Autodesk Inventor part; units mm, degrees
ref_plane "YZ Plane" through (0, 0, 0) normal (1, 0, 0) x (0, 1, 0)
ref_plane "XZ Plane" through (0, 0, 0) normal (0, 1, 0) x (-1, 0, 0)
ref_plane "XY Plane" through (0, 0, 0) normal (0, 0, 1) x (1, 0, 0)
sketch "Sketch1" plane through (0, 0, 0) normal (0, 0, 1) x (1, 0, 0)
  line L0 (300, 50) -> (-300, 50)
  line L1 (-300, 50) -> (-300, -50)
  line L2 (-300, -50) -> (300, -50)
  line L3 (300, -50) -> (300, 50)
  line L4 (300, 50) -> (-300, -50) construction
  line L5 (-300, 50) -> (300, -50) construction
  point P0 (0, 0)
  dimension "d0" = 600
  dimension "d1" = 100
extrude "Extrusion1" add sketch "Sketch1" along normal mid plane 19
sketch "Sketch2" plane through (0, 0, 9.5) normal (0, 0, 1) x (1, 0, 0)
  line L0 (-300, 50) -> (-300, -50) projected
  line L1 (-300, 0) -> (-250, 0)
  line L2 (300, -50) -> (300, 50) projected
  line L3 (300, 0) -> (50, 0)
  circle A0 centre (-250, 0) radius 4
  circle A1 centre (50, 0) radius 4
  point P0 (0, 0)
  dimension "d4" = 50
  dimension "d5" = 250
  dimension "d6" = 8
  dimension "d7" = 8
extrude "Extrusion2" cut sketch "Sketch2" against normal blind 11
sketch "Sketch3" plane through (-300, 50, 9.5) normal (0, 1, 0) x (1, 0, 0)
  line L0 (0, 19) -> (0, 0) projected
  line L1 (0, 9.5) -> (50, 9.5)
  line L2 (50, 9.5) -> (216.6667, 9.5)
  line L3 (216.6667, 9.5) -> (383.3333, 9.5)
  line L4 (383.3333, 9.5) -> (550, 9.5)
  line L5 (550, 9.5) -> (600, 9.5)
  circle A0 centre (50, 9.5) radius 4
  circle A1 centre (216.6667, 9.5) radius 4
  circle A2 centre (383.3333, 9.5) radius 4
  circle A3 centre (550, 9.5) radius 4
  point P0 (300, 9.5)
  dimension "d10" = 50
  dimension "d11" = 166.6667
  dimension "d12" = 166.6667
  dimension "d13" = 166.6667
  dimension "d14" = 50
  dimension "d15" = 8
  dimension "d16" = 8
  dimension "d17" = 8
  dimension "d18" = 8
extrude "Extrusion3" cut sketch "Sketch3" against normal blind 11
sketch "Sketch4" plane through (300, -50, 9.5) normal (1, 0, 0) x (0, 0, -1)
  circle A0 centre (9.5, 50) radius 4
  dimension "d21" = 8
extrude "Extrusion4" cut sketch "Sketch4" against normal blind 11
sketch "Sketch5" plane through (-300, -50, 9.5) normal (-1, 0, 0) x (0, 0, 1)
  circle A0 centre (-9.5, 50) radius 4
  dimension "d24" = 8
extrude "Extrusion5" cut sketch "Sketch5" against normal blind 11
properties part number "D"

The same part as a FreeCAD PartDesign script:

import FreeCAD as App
import Part
import Sketcher
Q = App.Units.Quantity

doc = App.newDocument("Part")
params = doc.addObject("Spreadsheet::Sheet", "Params")
for row, (alias, value) in enumerate([
    ("sketch1_width", "600 mm"),
    ("sketch1_height", "100 mm"),
    ("pad1_length", "19 mm"),
    ("sketch2_diameter", "8 mm"),
    ("pocket1_length", "11 mm"),
    ("sketch3_diameter", "8 mm"),
    ("pocket2_length", "11 mm"),
    ("sketch4_diameter", "8 mm"),
    ("pocket3_length", "11 mm"),
    ("sketch5_diameter", "8 mm"),
    ("pocket4_length", "11 mm"),
], start=1):
    params.set(f"A{row}", alias)
    params.set(f"B{row}", "=" + value)
    params.setAlias(f"B{row}", alias)

body = doc.addObject("PartDesign::Body", "Body")

# Sketch on XY plane
sketch1 = body.newObject("Sketcher::SketchObject", "Sketch")
sketch1.AttachmentSupport = (doc.getObject("XY_Plane"), [""])
sketch1.MapMode = "FlatFace"
sketch1.addGeometry([
    Part.LineSegment(App.Vector(300, -50, 0), App.Vector(300, 50, 0)),
    Part.LineSegment(App.Vector(300, 50, 0), App.Vector(-300, 50, 0)),
    Part.LineSegment(App.Vector(-300, 50, 0), App.Vector(-300, -50, 0)),
    Part.LineSegment(App.Vector(-300, -50, 0), App.Vector(300, -50, 0)),
], False)
sketch1.addConstraint([
    Sketcher.Constraint("Coincident", 0, 2, 1, 1),
    Sketcher.Constraint("Coincident", 1, 2, 2, 1),
    Sketcher.Constraint("Coincident", 2, 2, 3, 1),
    Sketcher.Constraint("Coincident", 3, 2, 0, 1),
    Sketcher.Constraint("Vertical", 0),
    Sketcher.Constraint("Horizontal", 1),
    Sketcher.Constraint("Vertical", 2),
    Sketcher.Constraint("Horizontal", 3),
    Sketcher.Constraint("Symmetric", 0, 2, 2, 2, -1, 1),
    Sketcher.Constraint("DistanceX", 1, 2, 1, 1, Q("600 mm")),
    Sketcher.Constraint("DistanceY", 0, 1, 0, 2, Q("100 mm")),
])
sketch1.setExpression("Constraints[9]", "Params.sketch1_width")
sketch1.setExpression("Constraints[10]", "Params.sketch1_height")
pad1 = body.newObject("PartDesign::Pad", "Pad")
pad1.Profile = sketch1
pad1.setExpression("Length", "Params.pad1_length")
pad1.Midplane = True

# Sketch on XY plane
sketch2 = body.newObject("Sketcher::SketchObject", "Sketch001")
sketch2.AttachmentSupport = (doc.getObject("XY_Plane"), [""])
sketch2.MapMode = "FlatFace"
sketch2.AttachmentOffset = App.Placement(App.Vector(0, 0, 9.5), App.Rotation())
sketch2.addGeometry([
    Part.Circle(App.Vector(-250, 0, 0), App.Vector(0, 0, 1), 4),
    Part.Circle(App.Vector(50, 0, 0), App.Vector(0, 0, 1), 4),
], False)
sketch2.addConstraint([
    Sketcher.Constraint("Equal", 0, 1),
    Sketcher.Constraint("PointOnObject", 0, 3, -1),
    Sketcher.Constraint("PointOnObject", 1, 3, -1),
    Sketcher.Constraint("Diameter", 0, Q("8 mm")),
    Sketcher.Constraint("DistanceX", 0, 3, -1, 1, Q("250 mm")),
    Sketcher.Constraint("DistanceX", -1, 1, 1, 3, Q("50 mm")),
])
sketch2.setExpression("Constraints[3]", "Params.sketch2_diameter")
pocket1 = body.newObject("PartDesign::Pocket", "Pocket")
pocket1.Profile = sketch2
pocket1.setExpression("Length", "Params.pocket1_length")

# Sketch on XZ plane
sketch3 = body.newObject("Sketcher::SketchObject", "Sketch002")
sketch3.AttachmentSupport = (doc.getObject("XZ_Plane"), [""])
sketch3.MapMode = "FlatFace"
sketch3.AttachmentOffset = App.Placement(App.Vector(0, 0, -50), App.Rotation())
sketch3.addGeometry([
    Part.Circle(App.Vector(-250, 0, 0), App.Vector(0, 0, 1), 4),
    Part.Circle(App.Vector(250, 0, 0), App.Vector(0, 0, 1), 4),
    Part.Circle(App.Vector(83.3333, 0, 0), App.Vector(0, 0, 1), 4),
    Part.Circle(App.Vector(-83.3333, 0, 0), App.Vector(0, 0, 1), 4),
], False)
sketch3.addConstraint([
    Sketcher.Constraint("Equal", 0, 1),
    Sketcher.Constraint("Equal", 1, 2),
    Sketcher.Constraint("Equal", 2, 3),
    Sketcher.Constraint("Symmetric", 0, 3, 1, 3, -1, 1),
    Sketcher.Constraint("Symmetric", 2, 3, 3, 3, -1, 1),
    Sketcher.Constraint("PointOnObject", 0, 3, -1),
    Sketcher.Constraint("PointOnObject", 2, 3, -1),
    Sketcher.Constraint("Diameter", 0, Q("8 mm")),
    Sketcher.Constraint("DistanceX", 0, 3, -1, 1, Q("250 mm")),
    Sketcher.Constraint("DistanceX", 2, 3, 1, 3, Q("166.6667 mm")),
])
sketch3.setExpression("Constraints[7]", "Params.sketch3_diameter")
pocket2 = body.newObject("PartDesign::Pocket", "Pocket001")
pocket2.Profile = sketch3
pocket2.setExpression("Length", "Params.pocket2_length")
pocket2.Reversed = True

# Sketch on YZ plane
sketch4 = body.newObject("Sketcher::SketchObject", "Sketch003")
sketch4.AttachmentSupport = (doc.getObject("YZ_Plane"), [""])
sketch4.MapMode = "FlatFace"
sketch4.AttachmentOffset = App.Placement(App.Vector(0, 0, 300), App.Rotation())
sketch4.addGeometry(Part.Circle(App.Vector(0, 0, 0), App.Vector(0, 0, 1), 4), False)
sketch4.addConstraint([
    Sketcher.Constraint("Coincident", 0, 3, -1, 1),
    Sketcher.Constraint("Diameter", 0, Q("8 mm")),
])
sketch4.setExpression("Constraints[1]", "Params.sketch4_diameter")
pocket3 = body.newObject("PartDesign::Pocket", "Pocket002")
pocket3.Profile = sketch4
pocket3.setExpression("Length", "Params.pocket3_length")

# Sketch on YZ plane
sketch5 = body.newObject("Sketcher::SketchObject", "Sketch004")
sketch5.AttachmentSupport = (doc.getObject("YZ_Plane"), [""])
sketch5.MapMode = "FlatFace"
sketch5.AttachmentOffset = App.Placement(App.Vector(0, 0, -300), App.Rotation())
sketch5.addGeometry(Part.Circle(App.Vector(0, 0, 0), App.Vector(0, 0, 1), 4), False)
sketch5.addConstraint([
    Sketcher.Constraint("Coincident", 0, 3, -1, 1),
    Sketcher.Constraint("Diameter", 0, Q("8 mm")),
])
sketch5.setExpression("Constraints[1]", "Params.sketch5_diameter")
pocket4 = body.newObject("PartDesign::Pocket", "Pocket003")
pocket4.Profile = sketch5
pocket4.setExpression("Length", "Params.pocket4_length")
pocket4.Reversed = True

doc.recompute()
